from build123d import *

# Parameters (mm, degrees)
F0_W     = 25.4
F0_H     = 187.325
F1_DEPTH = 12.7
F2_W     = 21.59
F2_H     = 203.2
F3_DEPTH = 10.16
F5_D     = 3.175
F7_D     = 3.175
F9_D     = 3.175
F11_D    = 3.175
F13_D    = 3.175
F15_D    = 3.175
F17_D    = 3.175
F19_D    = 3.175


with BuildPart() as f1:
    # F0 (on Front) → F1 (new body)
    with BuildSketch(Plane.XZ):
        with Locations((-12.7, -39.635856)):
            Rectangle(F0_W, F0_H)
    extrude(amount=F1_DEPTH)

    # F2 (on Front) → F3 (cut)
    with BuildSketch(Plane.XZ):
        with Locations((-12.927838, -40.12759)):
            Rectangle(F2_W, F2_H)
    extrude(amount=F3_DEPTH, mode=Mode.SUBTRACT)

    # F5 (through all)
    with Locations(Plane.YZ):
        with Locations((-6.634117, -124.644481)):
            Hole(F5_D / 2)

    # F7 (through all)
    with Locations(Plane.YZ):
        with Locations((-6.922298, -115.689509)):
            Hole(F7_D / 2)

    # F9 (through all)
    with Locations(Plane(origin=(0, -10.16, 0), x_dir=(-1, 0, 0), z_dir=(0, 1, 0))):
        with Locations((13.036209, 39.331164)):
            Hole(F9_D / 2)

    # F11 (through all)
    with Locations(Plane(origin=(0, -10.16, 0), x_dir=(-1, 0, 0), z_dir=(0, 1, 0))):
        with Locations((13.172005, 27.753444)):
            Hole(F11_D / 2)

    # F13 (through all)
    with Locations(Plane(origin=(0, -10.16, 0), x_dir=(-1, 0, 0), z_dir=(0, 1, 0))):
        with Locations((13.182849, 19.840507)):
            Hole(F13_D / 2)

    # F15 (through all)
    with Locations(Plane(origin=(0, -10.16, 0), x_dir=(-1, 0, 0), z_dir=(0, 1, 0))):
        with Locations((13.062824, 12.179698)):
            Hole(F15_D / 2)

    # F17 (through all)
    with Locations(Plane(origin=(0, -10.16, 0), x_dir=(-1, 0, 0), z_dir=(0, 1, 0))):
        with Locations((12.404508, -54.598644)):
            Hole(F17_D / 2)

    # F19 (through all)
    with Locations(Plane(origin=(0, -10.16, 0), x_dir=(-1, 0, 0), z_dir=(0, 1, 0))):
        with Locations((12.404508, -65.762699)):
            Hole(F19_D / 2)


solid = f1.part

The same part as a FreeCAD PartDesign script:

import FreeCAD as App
import Part
import Sketcher
from FreeCAD import Vector
Q = App.Units.Quantity

doc = App.newDocument("Part")
body = doc.addObject("PartDesign::Body", "Body")

sketch1 = body.newObject("Sketcher::SketchObject", "Sketch")
sketch1.AttachmentSupport = (doc.getObject("XZ_Plane"), [""])
sketch1.MapMode = "FlatFace"
sketch1.addGeometry(Part.LineSegment(Vector(-25, 54, 0), Vector(-25, -133, 0)), False)
sketch1.addGeometry(Part.LineSegment(Vector(-25, -133, 0), Vector(0, -133, 0)), False)
sketch1.addGeometry(Part.LineSegment(Vector(0, -133, 0), Vector(0, 54, 0)), False)
sketch1.addGeometry(Part.LineSegment(Vector(0, 54, 0), Vector(-25, 54, 0)), False)
sketch1.addConstraint(Sketcher.Constraint("Coincident", 0, 2, 1, 1))
sketch1.addConstraint(Sketcher.Constraint("Coincident", 1, 2, 2, 1))
sketch1.addConstraint(Sketcher.Constraint("Coincident", 2, 2, 3, 1))
sketch1.addConstraint(Sketcher.Constraint("Coincident", 3, 2, 0, 1))
sketch1.addConstraint(Sketcher.Constraint("Vertical", 0))
sketch1.addConstraint(Sketcher.Constraint("Horizontal", 1))
sketch1.addConstraint(Sketcher.Constraint("Vertical", 2))
sketch1.addConstraint(Sketcher.Constraint("Horizontal", 3))
sketch1.addConstraint(Sketcher.Constraint("PointOnObject", 1, 2, -2))
sketch1.addConstraint(Sketcher.Constraint("DistanceX", 1, 1, 1, 2, Q("1 in")))
sketch1.addConstraint(Sketcher.Constraint("DistanceY", 0, 2, 0, 1, Q("7.375 in")))
sketch1.addConstraint(Sketcher.Constraint("DistanceY", 0, 2, -1, 1, Q("133.298356 mm")))
pad1 = body.newObject("PartDesign::Pad", "Pad")
pad1.Profile = sketch1
pad1.Length = Q("0.5 in")

sketch2 = body.newObject("Sketcher::SketchObject", "Sketch001")
sketch2.AttachmentSupport = (doc.getObject("XZ_Plane"), [""])
sketch2.MapMode = "FlatFace"
sketch2.addGeometry(Part.LineSegment(Vector(-24, 61, 0), Vector(-24, -142, 0)), False)
sketch2.addGeometry(Part.LineSegment(Vector(-24, -142, 0), Vector(-2, -142, 0)), False)
sketch2.addGeometry(Part.LineSegment(Vector(-2, -142, 0), Vector(-2, 61, 0)), False)
sketch2.addGeometry(Part.LineSegment(Vector(-2, 61, 0), Vector(-24, 61, 0)), False)
sketch2.addConstraint(Sketcher.Constraint("Coincident", 0, 2, 1, 1))
sketch2.addConstraint(Sketcher.Constraint("Coincident", 1, 2, 2, 1))
sketch2.addConstraint(Sketcher.Constraint("Coincident", 2, 2, 3, 1))
sketch2.addConstraint(Sketcher.Constraint("Coincident", 3, 2, 0, 1))
sketch2.addConstraint(Sketcher.Constraint("Vertical", 0))
sketch2.addConstraint(Sketcher.Constraint("Horizontal", 1))
sketch2.addConstraint(Sketcher.Constraint("Vertical", 2))
sketch2.addConstraint(Sketcher.Constraint("Horizontal", 3))
sketch2.addConstraint(Sketcher.Constraint("DistanceY", 0, 2, 0, 1, Q("8 in")))
sketch2.addConstraint(Sketcher.Constraint("DistanceX", 1, 1, 1, 2, Q("0.85 in")))
sketch2.addConstraint(Sketcher.Constraint("DistanceY", 0, 2, -1, 1, Q("141.72759 mm")))
sketch2.addConstraint(Sketcher.Constraint("DistanceX", 1, 2, -1, 1, Q("2.132838 mm")))
pocket1 = body.newObject("PartDesign::Pocket", "Pocket")
pocket1.Profile = sketch2
pocket1.Length = Q("0.4 in")
pocket1.Reversed = True

sketch3 = body.newObject("Sketcher::SketchObject", "Sketch002")
sketch3.AttachmentSupport = (doc.getObject("YZ_Plane"), [""])
sketch3.MapMode = "FlatFace"
sketch3.addGeometry(Part.Circle(Vector(-6.6, -124.6, 0), Vector(0, 0, 1), 1.6), False)
sketch3.addConstraint(Sketcher.Constraint("Diameter", 0, Q("0.125 in")))
sketch3.addConstraint(Sketcher.Constraint("DistanceY", 0, 3, -1, 1, Q("124.644481 mm")))
sketch3.addConstraint(Sketcher.Constraint("DistanceX", 0, 3, -1, 1, Q("6.634117 mm")))
doc.recompute()
hole = body.newObject("PartDesign::Hole", "Hole")
hole.Profile = sketch3
hole.ThreadType = "None"
hole.Diameter = Q("0.125 in")
hole.DepthType = "ThroughAll"

sketch4 = body.newObject("Sketcher::SketchObject", "Sketch003")
sketch4.AttachmentSupport = (doc.getObject("YZ_Plane"), [""])
sketch4.MapMode = "FlatFace"
sketch4.addGeometry(Part.Circle(Vector(-6.9, -115.7, 0), Vector(0, 0, 1), 1.6), False)
sketch4.addConstraint(Sketcher.Constraint("Diameter", 0, Q("0.125 in")))
sketch4.addConstraint(Sketcher.Constraint("DistanceY", 0, 3, -1, 1, Q("115.689509 mm")))
sketch4.addConstraint(Sketcher.Constraint("DistanceX", 0, 3, -1, 1, Q("6.922298 mm")))
doc.recompute()
hole2 = body.newObject("PartDesign::Hole", "Hole001")
hole2.Profile = sketch4
hole2.ThreadType = "None"
hole2.Diameter = Q("0.125 in")
hole2.DepthType = "ThroughAll"

sketch5 = body.newObject("Sketcher::SketchObject", "Sketch004")
sketch5.AttachmentSupport = (doc.getObject("XZ_Plane"), [""])
sketch5.MapMode = "FlatFace"
sketch5.AttachmentOffset = App.Placement(Vector(0, 0, 0.4 * 25.4), App.Rotation())
sketch5.addGeometry(Part.Circle(Vector(-13, 39.3, 0), Vector(0, 0, 1), 1.6), False)
sketch5.addConstraint(Sketcher.Constraint("Diameter", 0, Q("0.125 in")))
sketch5.addConstraint(Sketcher.Constraint("DistanceX", 0, 3, -1, 1, Q("13.036209 mm")))
sketch5.addConstraint(Sketcher.Constraint("DistanceY", -1, 1, 0, 3, Q("39.331164 mm")))
doc.recompute()
hole3 = body.newObject("PartDesign::Hole", "Hole002")
hole3.Profile = sketch5
hole3.ThreadType = "None"
hole3.Diameter = Q("0.125 in")
hole3.DepthType = "ThroughAll"
hole3.Reversed = True

sketch6 = body.newObject("Sketcher::SketchObject", "Sketch005")
sketch6.AttachmentSupport = (doc.getObject("XZ_Plane"), [""])
sketch6.MapMode = "FlatFace"
sketch6.AttachmentOffset = App.Placement(Vector(0, 0, 0.4 * 25.4), App.Rotation())
sketch6.addGeometry(Part.Circle(Vector(-13.2, 27.8, 0), Vector(0, 0, 1), 1.6), False)
sketch6.addConstraint(Sketcher.Constraint("Diameter", 0, Q("0.125 in")))
sketch6.addConstraint(Sketcher.Constraint("DistanceX", 0, 3, -1, 1, Q("13.172005 mm")))
sketch6.addConstraint(Sketcher.Constraint("DistanceY", -1, 1, 0, 3, Q("27.753444 mm")))
doc.recompute()
hole4 = body.newObject("PartDesign::Hole", "Hole003")
hole4.Profile = sketch6
hole4.ThreadType = "None"
hole4.Diameter = Q("0.125 in")
hole4.DepthType = "ThroughAll"
hole4.Reversed = True

sketch7 = body.newObject("Sketcher::SketchObject", "Sketch006")
sketch7.AttachmentSupport = (doc.getObject("XZ_Plane"), [""])
sketch7.MapMode = "FlatFace"
sketch7.AttachmentOffset = App.Placement(Vector(0, 0, 0.4 * 25.4), App.Rotation())
sketch7.addGeometry(Part.Circle(Vector(-13.2, 19.8, 0), Vector(0, 0, 1), 1.6), False)
sketch7.addConstraint(Sketcher.Constraint("Diameter", 0, Q("0.125 in")))
sketch7.addConstraint(Sketcher.Constraint("DistanceX", 0, 3, -1, 1, Q("13.182849 mm")))
sketch7.addConstraint(Sketcher.Constraint("DistanceY", -1, 1, 0, 3, Q("19.840507 mm")))
doc.recompute()
hole5 = body.newObject("PartDesign::Hole", "Hole004")
hole5.Profile = sketch7
hole5.ThreadType = "None"
hole5.Diameter = Q("0.125 in")
hole5.DepthType = "ThroughAll"
hole5.Reversed = True

sketch8 = body.newObject("Sketcher::SketchObject", "Sketch007")
sketch8.AttachmentSupport = (doc.getObject("XZ_Plane"), [""])
sketch8.MapMode = "FlatFace"
sketch8.AttachmentOffset = App.Placement(Vector(0, 0, 0.4 * 25.4), App.Rotation())
sketch8.addGeometry(Part.Circle(Vector(-13.1, 12.2, 0), Vector(0, 0, 1), 1.6), False)
sketch8.addConstraint(Sketcher.Constraint("Diameter", 0, Q("0.125 in")))
sketch8.addConstraint(Sketcher.Constraint("DistanceX", 0, 3, -1, 1, Q("13.062824 mm")))
sketch8.addConstraint(Sketcher.Constraint("DistanceY", -1, 1, 0, 3, Q("12.179698 mm")))
doc.recompute()
hole6 = body.newObject("PartDesign::Hole", "Hole005")
hole6.Profile = sketch8
hole6.ThreadType = "None"
hole6.Diameter = Q("0.125 in")
hole6.DepthType = "ThroughAll"
hole6.Reversed = True

sketch9 = body.newObject("Sketcher::SketchObject", "Sketch008")
sketch9.AttachmentSupport = (doc.getObject("XZ_Plane"), [""])
sketch9.MapMode = "FlatFace"
sketch9.AttachmentOffset = App.Placement(Vector(0, 0, 0.4 * 25.4), App.Rotation())
sketch9.addGeometry(Part.Circle(Vector(-12.4, -54.6, 0), Vector(0, 0, 1), 1.6), False)
sketch9.addConstraint(Sketcher.Constraint("Diameter", 0, Q("0.125 in")))
sketch9.addConstraint(Sketcher.Constraint("DistanceX", 0, 3, -1, 1, Q("12.404508 mm")))
sketch9.addConstraint(Sketcher.Constraint("DistanceY", 0, 3, -1, 1, Q("54.598644 mm")))
doc.recompute()
hole7 = body.newObject("PartDesign::Hole", "Hole006")
hole7.Profile = sketch9
hole7.ThreadType = "None"
hole7.Diameter = Q("0.125 in")
hole7.DepthType = "ThroughAll"
hole7.Reversed = True

sketch10 = body.newObject("Sketcher::SketchObject", "Sketch009")
sketch10.AttachmentSupport = (doc.getObject("XZ_Plane"), [""])
sketch10.MapMode = "FlatFace"
sketch10.AttachmentOffset = App.Placement(Vector(0, 0, 0.4 * 25.4), App.Rotation())
sketch10.addGeometry(Part.Circle(Vector(-12.4, -65.8, 0), Vector(0, 0, 1), 1.6), False)
sketch10.addConstraint(Sketcher.Constraint("Diameter", 0, Q("0.125 in")))
sketch10.addConstraint(Sketcher.Constraint("DistanceY", 0, 3, -1, 1, Q("65.762699 mm")))
sketch10.addConstraint(Sketcher.Constraint("DistanceX", 0, 3, -1, 1, Q("12.404508 mm")))
doc.recompute()
hole8 = body.newObject("PartDesign::Hole", "Hole007")
hole8.Profile = sketch10
hole8.ThreadType = "None"
hole8.Diameter = Q("0.125 in")
hole8.DepthType = "ThroughAll"
hole8.Reversed = True

doc.recompute()
